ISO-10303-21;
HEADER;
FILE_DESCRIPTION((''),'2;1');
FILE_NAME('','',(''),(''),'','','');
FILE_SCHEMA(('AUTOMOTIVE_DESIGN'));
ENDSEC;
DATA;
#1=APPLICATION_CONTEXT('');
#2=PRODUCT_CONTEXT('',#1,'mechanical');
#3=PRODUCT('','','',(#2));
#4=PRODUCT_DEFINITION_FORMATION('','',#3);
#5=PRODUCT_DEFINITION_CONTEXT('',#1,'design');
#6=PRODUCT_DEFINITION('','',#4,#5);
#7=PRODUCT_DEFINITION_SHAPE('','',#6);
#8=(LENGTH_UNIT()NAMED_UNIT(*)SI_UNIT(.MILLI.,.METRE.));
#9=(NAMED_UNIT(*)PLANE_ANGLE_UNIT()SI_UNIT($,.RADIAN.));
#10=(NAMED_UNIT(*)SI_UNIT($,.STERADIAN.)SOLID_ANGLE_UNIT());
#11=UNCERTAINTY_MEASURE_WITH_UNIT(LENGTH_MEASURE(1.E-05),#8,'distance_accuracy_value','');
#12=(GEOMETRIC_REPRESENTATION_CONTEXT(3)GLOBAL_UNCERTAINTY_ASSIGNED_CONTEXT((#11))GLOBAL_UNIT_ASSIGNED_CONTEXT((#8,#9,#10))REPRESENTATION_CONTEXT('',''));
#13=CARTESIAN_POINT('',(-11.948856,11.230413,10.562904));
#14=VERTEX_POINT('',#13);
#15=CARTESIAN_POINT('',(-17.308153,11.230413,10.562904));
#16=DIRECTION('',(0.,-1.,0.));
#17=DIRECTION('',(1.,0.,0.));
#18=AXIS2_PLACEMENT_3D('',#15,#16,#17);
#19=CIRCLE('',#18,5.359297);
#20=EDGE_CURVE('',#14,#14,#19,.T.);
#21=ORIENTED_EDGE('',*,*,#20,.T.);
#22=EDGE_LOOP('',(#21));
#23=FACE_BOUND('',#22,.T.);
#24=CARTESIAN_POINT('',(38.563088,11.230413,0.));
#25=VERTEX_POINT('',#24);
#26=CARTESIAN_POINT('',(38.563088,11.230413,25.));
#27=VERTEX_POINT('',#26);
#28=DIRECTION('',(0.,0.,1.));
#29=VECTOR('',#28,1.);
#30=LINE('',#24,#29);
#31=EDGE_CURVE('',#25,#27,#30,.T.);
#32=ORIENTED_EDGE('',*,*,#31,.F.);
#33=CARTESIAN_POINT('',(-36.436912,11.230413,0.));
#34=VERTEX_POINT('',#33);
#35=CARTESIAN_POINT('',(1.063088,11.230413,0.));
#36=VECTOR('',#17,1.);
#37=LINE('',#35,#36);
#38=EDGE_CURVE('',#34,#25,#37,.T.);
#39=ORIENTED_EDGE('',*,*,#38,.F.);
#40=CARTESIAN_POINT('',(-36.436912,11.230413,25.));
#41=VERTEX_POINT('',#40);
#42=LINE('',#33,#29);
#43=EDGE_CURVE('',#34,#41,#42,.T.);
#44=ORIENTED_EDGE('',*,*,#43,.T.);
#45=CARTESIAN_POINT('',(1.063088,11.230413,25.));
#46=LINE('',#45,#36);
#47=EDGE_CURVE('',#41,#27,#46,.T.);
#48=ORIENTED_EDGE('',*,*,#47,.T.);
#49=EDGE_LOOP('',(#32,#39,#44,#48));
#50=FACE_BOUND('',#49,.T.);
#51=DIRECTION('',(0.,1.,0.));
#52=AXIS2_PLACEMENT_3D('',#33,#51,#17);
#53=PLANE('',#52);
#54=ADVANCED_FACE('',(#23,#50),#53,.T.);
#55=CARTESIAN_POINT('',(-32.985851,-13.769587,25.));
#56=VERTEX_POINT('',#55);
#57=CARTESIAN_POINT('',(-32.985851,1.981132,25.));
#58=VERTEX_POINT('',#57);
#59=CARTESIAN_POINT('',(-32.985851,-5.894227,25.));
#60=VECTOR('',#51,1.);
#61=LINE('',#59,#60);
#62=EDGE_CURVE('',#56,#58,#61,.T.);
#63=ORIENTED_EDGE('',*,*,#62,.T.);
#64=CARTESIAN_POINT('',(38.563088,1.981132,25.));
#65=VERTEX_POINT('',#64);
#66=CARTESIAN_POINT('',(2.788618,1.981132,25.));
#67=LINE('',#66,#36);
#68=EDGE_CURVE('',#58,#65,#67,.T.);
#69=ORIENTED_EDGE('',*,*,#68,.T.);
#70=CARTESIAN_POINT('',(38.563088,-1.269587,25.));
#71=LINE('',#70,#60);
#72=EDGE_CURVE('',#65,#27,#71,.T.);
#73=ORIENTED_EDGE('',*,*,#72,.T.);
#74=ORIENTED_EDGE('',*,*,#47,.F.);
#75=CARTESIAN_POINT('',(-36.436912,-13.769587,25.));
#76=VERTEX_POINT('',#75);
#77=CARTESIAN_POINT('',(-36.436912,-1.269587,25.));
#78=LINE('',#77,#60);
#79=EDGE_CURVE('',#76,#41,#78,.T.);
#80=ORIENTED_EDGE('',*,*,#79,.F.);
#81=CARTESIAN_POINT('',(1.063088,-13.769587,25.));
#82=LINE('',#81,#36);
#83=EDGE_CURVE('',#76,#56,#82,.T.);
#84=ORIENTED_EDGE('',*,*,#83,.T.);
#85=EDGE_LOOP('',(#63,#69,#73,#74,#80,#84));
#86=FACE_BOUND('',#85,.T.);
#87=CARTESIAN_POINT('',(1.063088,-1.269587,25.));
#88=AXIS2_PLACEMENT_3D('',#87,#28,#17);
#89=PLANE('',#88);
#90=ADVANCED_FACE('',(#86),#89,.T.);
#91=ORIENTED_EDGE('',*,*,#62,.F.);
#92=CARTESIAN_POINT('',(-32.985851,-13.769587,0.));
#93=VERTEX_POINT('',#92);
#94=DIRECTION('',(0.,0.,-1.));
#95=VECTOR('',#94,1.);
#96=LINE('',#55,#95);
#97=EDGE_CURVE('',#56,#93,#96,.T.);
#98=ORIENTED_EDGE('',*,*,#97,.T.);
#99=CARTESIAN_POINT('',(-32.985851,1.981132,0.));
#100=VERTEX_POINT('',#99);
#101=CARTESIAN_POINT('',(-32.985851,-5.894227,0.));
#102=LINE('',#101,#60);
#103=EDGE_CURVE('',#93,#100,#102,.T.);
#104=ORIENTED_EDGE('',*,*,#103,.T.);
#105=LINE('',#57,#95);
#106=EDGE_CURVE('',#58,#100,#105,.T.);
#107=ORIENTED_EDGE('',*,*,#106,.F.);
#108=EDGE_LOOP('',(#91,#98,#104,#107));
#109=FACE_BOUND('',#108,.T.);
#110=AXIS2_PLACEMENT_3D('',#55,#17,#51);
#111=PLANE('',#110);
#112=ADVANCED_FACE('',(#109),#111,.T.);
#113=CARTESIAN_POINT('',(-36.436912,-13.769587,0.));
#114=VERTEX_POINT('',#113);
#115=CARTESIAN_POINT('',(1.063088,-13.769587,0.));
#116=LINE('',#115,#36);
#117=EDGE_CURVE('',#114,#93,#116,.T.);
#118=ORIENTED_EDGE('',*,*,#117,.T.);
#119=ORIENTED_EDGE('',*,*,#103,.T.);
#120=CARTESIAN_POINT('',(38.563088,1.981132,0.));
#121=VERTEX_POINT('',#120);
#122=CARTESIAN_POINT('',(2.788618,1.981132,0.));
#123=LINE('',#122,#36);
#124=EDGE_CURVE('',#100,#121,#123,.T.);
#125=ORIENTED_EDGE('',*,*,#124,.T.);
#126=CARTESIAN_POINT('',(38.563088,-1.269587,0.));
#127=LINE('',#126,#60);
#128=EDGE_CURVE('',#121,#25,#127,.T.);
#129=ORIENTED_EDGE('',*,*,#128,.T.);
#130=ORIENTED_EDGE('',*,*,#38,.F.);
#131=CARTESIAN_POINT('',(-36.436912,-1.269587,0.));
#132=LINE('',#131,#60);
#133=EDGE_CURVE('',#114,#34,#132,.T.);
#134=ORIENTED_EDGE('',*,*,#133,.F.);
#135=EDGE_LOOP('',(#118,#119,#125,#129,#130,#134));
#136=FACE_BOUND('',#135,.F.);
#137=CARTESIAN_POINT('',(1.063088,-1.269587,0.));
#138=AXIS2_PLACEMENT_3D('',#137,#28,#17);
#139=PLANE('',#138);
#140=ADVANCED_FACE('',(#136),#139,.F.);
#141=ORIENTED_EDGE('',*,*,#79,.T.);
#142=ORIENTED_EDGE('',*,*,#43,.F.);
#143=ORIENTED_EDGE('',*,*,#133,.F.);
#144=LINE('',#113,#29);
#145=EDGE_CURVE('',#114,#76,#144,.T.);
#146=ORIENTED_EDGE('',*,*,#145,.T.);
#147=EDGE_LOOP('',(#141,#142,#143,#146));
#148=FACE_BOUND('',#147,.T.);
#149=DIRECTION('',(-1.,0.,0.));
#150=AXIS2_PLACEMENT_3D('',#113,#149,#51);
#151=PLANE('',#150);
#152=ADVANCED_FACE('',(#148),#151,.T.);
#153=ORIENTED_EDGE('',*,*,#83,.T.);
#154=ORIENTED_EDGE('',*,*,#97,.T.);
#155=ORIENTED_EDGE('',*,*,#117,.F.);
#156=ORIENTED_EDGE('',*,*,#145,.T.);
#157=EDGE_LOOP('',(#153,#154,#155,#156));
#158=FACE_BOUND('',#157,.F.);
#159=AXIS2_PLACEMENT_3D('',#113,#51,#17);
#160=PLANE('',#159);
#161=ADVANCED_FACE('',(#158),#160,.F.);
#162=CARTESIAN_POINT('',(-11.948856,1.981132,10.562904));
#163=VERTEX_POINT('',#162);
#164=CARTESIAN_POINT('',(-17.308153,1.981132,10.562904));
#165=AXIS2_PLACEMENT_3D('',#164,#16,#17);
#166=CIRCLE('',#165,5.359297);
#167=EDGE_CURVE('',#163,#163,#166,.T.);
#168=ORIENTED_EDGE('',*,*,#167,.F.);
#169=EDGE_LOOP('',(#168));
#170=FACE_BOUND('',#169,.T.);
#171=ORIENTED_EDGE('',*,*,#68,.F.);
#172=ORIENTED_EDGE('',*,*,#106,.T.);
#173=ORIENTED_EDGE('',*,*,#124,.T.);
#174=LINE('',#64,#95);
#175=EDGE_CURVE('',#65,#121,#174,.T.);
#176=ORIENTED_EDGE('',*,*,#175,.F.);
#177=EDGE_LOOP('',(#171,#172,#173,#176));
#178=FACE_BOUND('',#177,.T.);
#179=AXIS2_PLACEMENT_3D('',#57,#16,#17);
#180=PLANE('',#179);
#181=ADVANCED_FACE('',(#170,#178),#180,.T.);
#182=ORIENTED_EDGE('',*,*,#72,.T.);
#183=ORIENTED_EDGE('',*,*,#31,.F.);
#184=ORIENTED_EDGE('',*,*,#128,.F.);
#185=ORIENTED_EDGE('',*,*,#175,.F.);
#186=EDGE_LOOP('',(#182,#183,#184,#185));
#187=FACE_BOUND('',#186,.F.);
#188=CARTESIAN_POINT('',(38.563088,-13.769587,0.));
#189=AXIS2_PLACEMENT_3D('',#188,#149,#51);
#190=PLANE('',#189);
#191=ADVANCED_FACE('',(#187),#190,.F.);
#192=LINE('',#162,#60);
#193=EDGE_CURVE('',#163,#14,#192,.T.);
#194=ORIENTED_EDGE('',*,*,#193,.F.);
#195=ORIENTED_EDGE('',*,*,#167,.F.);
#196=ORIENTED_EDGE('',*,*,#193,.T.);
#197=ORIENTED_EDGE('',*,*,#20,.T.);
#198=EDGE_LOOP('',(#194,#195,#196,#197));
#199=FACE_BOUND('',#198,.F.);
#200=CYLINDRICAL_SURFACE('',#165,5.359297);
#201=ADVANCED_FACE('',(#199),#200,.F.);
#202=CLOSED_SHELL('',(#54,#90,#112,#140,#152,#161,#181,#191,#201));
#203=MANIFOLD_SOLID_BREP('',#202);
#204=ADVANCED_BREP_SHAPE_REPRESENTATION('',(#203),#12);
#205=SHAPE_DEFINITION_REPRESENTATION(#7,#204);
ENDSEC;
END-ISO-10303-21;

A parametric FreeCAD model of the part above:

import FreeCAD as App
import Part
import Sketcher

V = App.Vector

doc = App.newDocument("Part")
body = doc.addObject("PartDesign::Body", "Body")

sketch1 = body.newObject("Sketcher::SketchObject", "Sketch")
sketch1.AttachmentSupport = (doc.getObject("XY_Plane"), [""])
sketch1.MapMode = "FlatFace"
sketch1.addGeometry([
    Part.LineSegment(V(-36, 11, 0), V(-36, -14, 0)),
    Part.LineSegment(V(-36, -14, 0), V(39, -14, 0)),
    Part.LineSegment(V(39, -14, 0), V(39, 11, 0)),
    Part.LineSegment(V(39, 11, 0), V(-36, 11, 0)),
], False)
sketch1.addConstraint([
    Sketcher.Constraint("Coincident", 0, 2, 1, 1),
    Sketcher.Constraint("Coincident", 1, 2, 2, 1),
    Sketcher.Constraint("Coincident", 2, 2, 3, 1),
    Sketcher.Constraint("Coincident", 3, 2, 0, 1),
    Sketcher.Constraint("Vertical", 0),
    Sketcher.Constraint("Horizontal", 1),
    Sketcher.Constraint("Vertical", 2),
    Sketcher.Constraint("Horizontal", 3),
    Sketcher.Constraint("DistanceX", 1, 1, 1, 2, 75.0),
    Sketcher.Constraint("DistanceY", 0, 2, 0, 1, 25.0),
    Sketcher.Constraint("DistanceX", 0, 2, -1, 1, 36.436912),
    Sketcher.Constraint("DistanceY", 0, 2, -1, 1, 13.769587),
])
pad1 = body.newObject("PartDesign::Pad", "Pad")
pad1.Profile = sketch1
pad1.Length = 25

sketch2 = body.newObject("Sketcher::SketchObject", "Sketch001")
sketch2.AttachmentSupport = (doc.getObject("XY_Plane"), [""])
sketch2.MapMode = "FlatFace"
sketch2.AttachmentOffset = App.Placement(V(0, 0, 25), App.Rotation())
sketch2.addGeometry([
    Part.LineSegment(V(-33, 2, 0), V(-33, -14, 0)),
    Part.LineSegment(V(-33, -14, 0), V(39, -14, 0)),
    Part.LineSegment(V(39, -14, 0), V(39, 2, 0)),
    Part.LineSegment(V(39, 2, 0), V(-33, 2, 0)),
], False)
sketch2.addConstraint([
    Sketcher.Constraint("Coincident", 0, 2, 1, 1),
    Sketcher.Constraint("Coincident", 1, 2, 2, 1),
    Sketcher.Constraint("Coincident", 2, 2, 3, 1),
    Sketcher.Constraint("Coincident", 3, 2, 0, 1),
    Sketcher.Constraint("Vertical", 0),
    Sketcher.Constraint("Horizontal", 1),
    Sketcher.Constraint("Vertical", 2),
    Sketcher.Constraint("Horizontal", 3),
    Sketcher.Constraint("DistanceX", 1, 1, 1, 2, 71.548939),
    Sketcher.Constraint("DistanceY", 0, 2, 0, 1, 15.750719),
    Sketcher.Constraint("DistanceX", 0, 2, -1, 1, 32.985851),
    Sketcher.Constraint("DistanceY", 0, 2, -1, 1, 13.769587),
])
pocket1 = body.newObject("PartDesign::Pocket", "Pocket")
pocket1.Profile = sketch2
pocket1.Length = 25

sketch3 = body.newObject("Sketcher::SketchObject", "Sketch002")
sketch3.AttachmentSupport = (doc.getObject("XZ_Plane"), [""])
sketch3.MapMode = "FlatFace"
sketch3.AttachmentOffset = App.Placement(V(0, 0, -1.981132), App.Rotation())
sketch3.addGeometry(Part.Circle(V(-17, 11, 0), V(0, 0, 1), 5), False)
sketch3.addConstraint([
    Sketcher.Constraint("Diameter", 0, 10.718594),
    Sketcher.Constraint("DistanceX", 0, 3, -1, 1, 17.308153),
    Sketcher.Constraint("DistanceY", -1, 1, 0, 3, 10.562904),
])
pocket2 = body.newObject("PartDesign::Pocket", "Pocket001")
pocket2.Profile = sketch3
pocket2.Length = 25

doc.recompute()
